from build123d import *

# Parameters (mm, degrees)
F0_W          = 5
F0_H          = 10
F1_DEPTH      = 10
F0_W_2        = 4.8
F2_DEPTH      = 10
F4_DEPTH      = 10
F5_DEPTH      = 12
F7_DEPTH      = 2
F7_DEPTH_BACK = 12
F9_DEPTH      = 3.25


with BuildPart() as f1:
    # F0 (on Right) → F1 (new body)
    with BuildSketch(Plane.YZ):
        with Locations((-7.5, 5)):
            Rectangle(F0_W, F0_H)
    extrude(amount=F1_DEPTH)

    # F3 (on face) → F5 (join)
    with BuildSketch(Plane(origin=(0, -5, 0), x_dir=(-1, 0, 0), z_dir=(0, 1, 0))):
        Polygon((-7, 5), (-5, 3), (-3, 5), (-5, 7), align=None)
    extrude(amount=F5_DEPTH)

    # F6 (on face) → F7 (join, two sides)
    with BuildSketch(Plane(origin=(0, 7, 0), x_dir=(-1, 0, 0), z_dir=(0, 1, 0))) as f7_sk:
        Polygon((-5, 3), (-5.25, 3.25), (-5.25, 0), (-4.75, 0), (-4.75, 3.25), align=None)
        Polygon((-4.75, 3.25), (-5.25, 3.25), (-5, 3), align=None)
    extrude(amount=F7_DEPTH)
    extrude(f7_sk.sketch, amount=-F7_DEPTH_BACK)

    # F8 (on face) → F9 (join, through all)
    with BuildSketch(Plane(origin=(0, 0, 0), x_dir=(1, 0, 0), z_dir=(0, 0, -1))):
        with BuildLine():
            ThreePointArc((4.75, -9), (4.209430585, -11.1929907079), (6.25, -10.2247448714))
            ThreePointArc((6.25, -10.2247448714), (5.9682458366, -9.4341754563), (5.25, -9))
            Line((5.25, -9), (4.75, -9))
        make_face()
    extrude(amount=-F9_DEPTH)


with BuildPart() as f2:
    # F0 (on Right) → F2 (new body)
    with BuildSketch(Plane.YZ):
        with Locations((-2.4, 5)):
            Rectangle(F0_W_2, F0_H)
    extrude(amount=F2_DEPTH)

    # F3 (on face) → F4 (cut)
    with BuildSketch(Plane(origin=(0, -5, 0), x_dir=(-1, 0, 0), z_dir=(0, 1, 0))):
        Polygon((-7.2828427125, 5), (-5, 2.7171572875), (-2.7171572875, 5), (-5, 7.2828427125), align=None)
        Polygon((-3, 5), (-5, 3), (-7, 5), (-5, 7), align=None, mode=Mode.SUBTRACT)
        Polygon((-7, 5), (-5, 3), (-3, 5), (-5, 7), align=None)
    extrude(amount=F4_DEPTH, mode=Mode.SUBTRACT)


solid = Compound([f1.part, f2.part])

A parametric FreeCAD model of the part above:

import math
import FreeCAD as App
import Part
import Sketcher
from FreeCAD import Vector

doc = App.newDocument("Part")
body = doc.addObject("PartDesign::Body", "Body")

sketch1 = doc.addObject("Sketcher::SketchObject", "Sketch")
body.addObject(sketch1)
sketch1.AttachmentSupport = (doc.YZ_Plane, [""])
sketch1.MapMode = "FlatFace"
sketch1.addGeometry([
    Part.LineSegment(Vector(-10, 10, 0), Vector(-10, 0, 0)),
    Part.LineSegment(Vector(-10, 0, 0), Vector(-5, 0, 0)),
    Part.LineSegment(Vector(-5, 0, 0), Vector(-5, 10, 0)),
    Part.LineSegment(Vector(-5, 10, 0), Vector(-10, 10, 0)),
], False)
sketch1.addConstraint([
    Sketcher.Constraint("Coincident", 0, 2, 1, 1),
    Sketcher.Constraint("Coincident", 1, 2, 2, 1),
    Sketcher.Constraint("Coincident", 2, 2, 3, 1),
    Sketcher.Constraint("Coincident", 3, 2, 0, 1),
    Sketcher.Constraint("Vertical", 0),
    Sketcher.Constraint("Horizontal", 1),
    Sketcher.Constraint("Vertical", 2),
    Sketcher.Constraint("Horizontal", 3),
    Sketcher.Constraint("PointOnObject", 0, 2, -1),
    Sketcher.Constraint("DistanceX", 1, 1, 1, 2, 5.0),
    Sketcher.Constraint("DistanceY", 0, 2, 0, 1, 10.0),
    Sketcher.Constraint("DistanceX", 0, 2, -1, 1, 10.0),
])
pad1 = doc.addObject("PartDesign::Pad", "Pad")
body.addObject(pad1)
pad1.Profile = sketch1
pad1.Length = 10

sketch2 = doc.addObject("Sketcher::SketchObject", "Sketch001")
body.addObject(sketch2)
sketch2.AttachmentSupport = (doc.XZ_Plane, [""])
sketch2.MapMode = "FlatFace"
sketch2.AttachmentOffset = App.Placement(Vector(0, 0, 5), App.Rotation())
sketch2.addGeometry([
    Part.LineSegment(Vector(7, 5, 0), Vector(5, 3, 0)),
    Part.LineSegment(Vector(5, 3, 0), Vector(3, 5, 0)),
    Part.LineSegment(Vector(3, 5, 0), Vector(5, 7, 0)),
    Part.LineSegment(Vector(5, 7, 0), Vector(7, 5, 0)),
], False)
sketch2.addConstraint([
    Sketcher.Constraint("Coincident", 0, 2, 1, 1),
    Sketcher.Constraint("Coincident", 1, 2, 2, 1),
    Sketcher.Constraint("Coincident", 2, 2, 3, 1),
    Sketcher.Constraint("Coincident", 3, 2, 0, 1),
    Sketcher.Constraint("Perpendicular", 0, 1),
    Sketcher.Constraint("Perpendicular", 1, 2),
    Sketcher.Constraint("Perpendicular", 2, 3),
    Sketcher.Constraint("Horizontal", 1, 2, 3, 2),
    Sketcher.Constraint("Vertical", 0, 2, 2, 2),
    Sketcher.Constraint("DistanceX", -1, 1, 0, 2, 5.0),
    Sketcher.Constraint("DistanceY", -1, 1, 0, 2, 3.0),
    Sketcher.Constraint("DistanceX", -1, 1, 1, 2, 3.0),
])
pad2 = doc.addObject("PartDesign::Pad", "Pad001")
body.addObject(pad2)
pad2.Profile = sketch2
pad2.Length = 12
pad2.Reversed = True

sketch3 = doc.addObject("Sketcher::SketchObject", "Sketch002")
body.addObject(sketch3)
sketch3.AttachmentSupport = (doc.XZ_Plane, [""])
sketch3.MapMode = "FlatFace"
sketch3.AttachmentOffset = App.Placement(Vector(0, 0, -7), App.Rotation())
sketch3.addGeometry([
    Part.LineSegment(Vector(5.2, 3.2, 0), Vector(5.2, 0, 0)),
    Part.LineSegment(Vector(5.2, 0, 0), Vector(4.8, 0, 0)),
    Part.LineSegment(Vector(4.8, 0, 0), Vector(4.8, 3.2, 0)),
    Part.LineSegment(Vector(4.8, 3.2, 0), Vector(5.2, 3.2, 0)),
], False)
sketch3.addConstraint([
    Sketcher.Constraint("Coincident", 0, 2, 1, 1),
    Sketcher.Constraint("Coincident", 1, 2, 2, 1),
    Sketcher.Constraint("Coincident", 2, 2, 3, 1),
    Sketcher.Constraint("Coincident", 3, 2, 0, 1),
    Sketcher.Constraint("Vertical", 0),
    Sketcher.Constraint("Horizontal", 1),
    Sketcher.Constraint("Vertical", 2),
    Sketcher.Constraint("Horizontal", 3),
    Sketcher.Constraint("PointOnObject", 0, 2, -1),
    Sketcher.Constraint("DistanceX", 1, 2, 1, 1, 0.5),
    Sketcher.Constraint("DistanceY", 0, 2, 0, 1, 3.25),
    Sketcher.Constraint("DistanceX", -1, 1, 0, 2, 5.25),
])
pad3 = doc.addObject("PartDesign::Pad", "Pad002")
body.addObject(pad3)
pad3.Profile = sketch3
pad3.Type = "TwoLengths"
pad3.Length = 2
pad3.Length2 = 12
pad3.Reversed = True

sketch4 = doc.addObject("Sketcher::SketchObject", "Sketch003")
body.addObject(sketch4)
sketch4.AttachmentSupport = (doc.XY_Plane, [""])
sketch4.MapMode = "FlatFace"
sketch4.addGeometry([
    Part.ArcOfCircle(Part.Circle(Vector(5, 10.2, 0), Vector(0, 0, 1), 1.2), math.radians(0), math.radians(258)),
    Part.ArcOfCircle(Part.Circle(Vector(5, 10.2, 0), Vector(0, 0, 1), 1.2), math.radians(-78), math.radians(0)),
    Part.LineSegment(Vector(5.2, 9, 0), Vector(4.8, 9, 0)),
], False)
sketch4.addConstraint([
    Sketcher.Constraint("Tangent", 0, 1, 1, 2),
    Sketcher.Constraint("Coincident", 1, 1, 2, 1),
    Sketcher.Constraint("Coincident", 2, 2, 0, 2),
    Sketcher.Constraint("Horizontal", 2),
    Sketcher.Constraint("Equal", 0, 1),
    Sketcher.Constraint("Horizontal", 1, 3, 0, 1),
    Sketcher.Constraint("Radius", 0, 1.25),
    Sketcher.Constraint("DistanceX", 2, 2, 2, 1, 0.5),
    Sketcher.Constraint("DistanceX", -1, 1, 0, 3, 5.0),
    Sketcher.Constraint("DistanceY", -1, 1, 1, 1, 9.0),
])
pad4 = doc.addObject("PartDesign::Pad", "Pad003")
body.addObject(pad4)
pad4.Profile = sketch4
pad4.Length = 3.25
body2 = doc.addObject("PartDesign::Body", "Body001")

sketch5 = doc.addObject("Sketcher::SketchObject", "Sketch004")
body2.addObject(sketch5)
sketch5.AttachmentSupport = (doc.getObject("YZ_Plane001"), [""])
sketch5.MapMode = "FlatFace"
sketch5.addGeometry([
    Part.LineSegment(Vector(-4.8, 10, 0), Vector(-4.8, 0, 0)),
    Part.LineSegment(Vector(-4.8, 0, 0), Vector(0, 0, 0)),
    Part.LineSegment(Vector(0, 0, 0), Vector(0, 10, 0)),
    Part.LineSegment(Vector(0, 10, 0), Vector(-4.8, 10, 0)),
], False)
sketch5.addConstraint([
    Sketcher.Constraint("Coincident", 0, 2, 1, 1),
    Sketcher.Constraint("Coincident", 1, 2, 2, 1),
    Sketcher.Constraint("Coincident", 2, 2, 3, 1),
    Sketcher.Constraint("Coincident", 3, 2, 0, 1),
    Sketcher.Constraint("Vertical", 0),
    Sketcher.Constraint("Horizontal", 1),
    Sketcher.Constraint("Vertical", 2),
    Sketcher.Constraint("Horizontal", 3),
    Sketcher.Constraint("Coincident", 1, 2, -1, 1),
    Sketcher.Constraint("DistanceY", 0, 2, 0, 1, 10.0),
    Sketcher.Constraint("DistanceX", 1, 1, 1, 2, 4.8),
])
pad5 = doc.addObject("PartDesign::Pad", "Pad004")
body2.addObject(pad5)
pad5.Profile = sketch5
pad5.Length = 10

sketch6 = doc.addObject("Sketcher::SketchObject", "Sketch005")
body2.addObject(sketch6)
sketch6.AttachmentSupport = (doc.getObject("XZ_Plane001"), [""])
sketch6.MapMode = "FlatFace"
sketch6.AttachmentOffset = App.Placement(Vector(0, 0, 5), App.Rotation())
sketch6.addGeometry([
    Part.LineSegment(Vector(7.3, 5, 0), Vector(5, 2.7, 0)),
    Part.LineSegment(Vector(5, 2.7, 0), Vector(2.7, 5, 0)),
    Part.LineSegment(Vector(2.7, 5, 0), Vector(5, 7.3, 0)),
    Part.LineSegment(Vector(5, 7.3, 0), Vector(7.3, 5, 0)),
], False)
sketch6.addConstraint([
    Sketcher.Constraint("Coincident", 0, 2, 1, 1),
    Sketcher.Constraint("Coincident", 1, 2, 2, 1),
    Sketcher.Constraint("Coincident", 2, 2, 3, 1),
    Sketcher.Constraint("Coincident", 3, 2, 0, 1),
    Sketcher.Constraint("Perpendicular", 0, 1),
    Sketcher.Constraint("Perpendicular", 1, 2),
    Sketcher.Constraint("Perpendicular", 2, 3),
    Sketcher.Constraint("Horizontal", 1, 2, 3, 2),
    Sketcher.Constraint("Vertical", 0, 2, 2, 2),
    Sketcher.Constraint("DistanceX", -1, 1, 0, 2, 5.0),
    Sketcher.Constraint("DistanceY", -1, 1, 1, 2, 5.0),
    Sketcher.Constraint("Distance", 0, 3.228427),
])
pocket1 = doc.addObject("PartDesign::Pocket", "Pocket")
body2.addObject(pocket1)
pocket1.Profile = sketch6
pocket1.Length = 10

doc.recompute()
